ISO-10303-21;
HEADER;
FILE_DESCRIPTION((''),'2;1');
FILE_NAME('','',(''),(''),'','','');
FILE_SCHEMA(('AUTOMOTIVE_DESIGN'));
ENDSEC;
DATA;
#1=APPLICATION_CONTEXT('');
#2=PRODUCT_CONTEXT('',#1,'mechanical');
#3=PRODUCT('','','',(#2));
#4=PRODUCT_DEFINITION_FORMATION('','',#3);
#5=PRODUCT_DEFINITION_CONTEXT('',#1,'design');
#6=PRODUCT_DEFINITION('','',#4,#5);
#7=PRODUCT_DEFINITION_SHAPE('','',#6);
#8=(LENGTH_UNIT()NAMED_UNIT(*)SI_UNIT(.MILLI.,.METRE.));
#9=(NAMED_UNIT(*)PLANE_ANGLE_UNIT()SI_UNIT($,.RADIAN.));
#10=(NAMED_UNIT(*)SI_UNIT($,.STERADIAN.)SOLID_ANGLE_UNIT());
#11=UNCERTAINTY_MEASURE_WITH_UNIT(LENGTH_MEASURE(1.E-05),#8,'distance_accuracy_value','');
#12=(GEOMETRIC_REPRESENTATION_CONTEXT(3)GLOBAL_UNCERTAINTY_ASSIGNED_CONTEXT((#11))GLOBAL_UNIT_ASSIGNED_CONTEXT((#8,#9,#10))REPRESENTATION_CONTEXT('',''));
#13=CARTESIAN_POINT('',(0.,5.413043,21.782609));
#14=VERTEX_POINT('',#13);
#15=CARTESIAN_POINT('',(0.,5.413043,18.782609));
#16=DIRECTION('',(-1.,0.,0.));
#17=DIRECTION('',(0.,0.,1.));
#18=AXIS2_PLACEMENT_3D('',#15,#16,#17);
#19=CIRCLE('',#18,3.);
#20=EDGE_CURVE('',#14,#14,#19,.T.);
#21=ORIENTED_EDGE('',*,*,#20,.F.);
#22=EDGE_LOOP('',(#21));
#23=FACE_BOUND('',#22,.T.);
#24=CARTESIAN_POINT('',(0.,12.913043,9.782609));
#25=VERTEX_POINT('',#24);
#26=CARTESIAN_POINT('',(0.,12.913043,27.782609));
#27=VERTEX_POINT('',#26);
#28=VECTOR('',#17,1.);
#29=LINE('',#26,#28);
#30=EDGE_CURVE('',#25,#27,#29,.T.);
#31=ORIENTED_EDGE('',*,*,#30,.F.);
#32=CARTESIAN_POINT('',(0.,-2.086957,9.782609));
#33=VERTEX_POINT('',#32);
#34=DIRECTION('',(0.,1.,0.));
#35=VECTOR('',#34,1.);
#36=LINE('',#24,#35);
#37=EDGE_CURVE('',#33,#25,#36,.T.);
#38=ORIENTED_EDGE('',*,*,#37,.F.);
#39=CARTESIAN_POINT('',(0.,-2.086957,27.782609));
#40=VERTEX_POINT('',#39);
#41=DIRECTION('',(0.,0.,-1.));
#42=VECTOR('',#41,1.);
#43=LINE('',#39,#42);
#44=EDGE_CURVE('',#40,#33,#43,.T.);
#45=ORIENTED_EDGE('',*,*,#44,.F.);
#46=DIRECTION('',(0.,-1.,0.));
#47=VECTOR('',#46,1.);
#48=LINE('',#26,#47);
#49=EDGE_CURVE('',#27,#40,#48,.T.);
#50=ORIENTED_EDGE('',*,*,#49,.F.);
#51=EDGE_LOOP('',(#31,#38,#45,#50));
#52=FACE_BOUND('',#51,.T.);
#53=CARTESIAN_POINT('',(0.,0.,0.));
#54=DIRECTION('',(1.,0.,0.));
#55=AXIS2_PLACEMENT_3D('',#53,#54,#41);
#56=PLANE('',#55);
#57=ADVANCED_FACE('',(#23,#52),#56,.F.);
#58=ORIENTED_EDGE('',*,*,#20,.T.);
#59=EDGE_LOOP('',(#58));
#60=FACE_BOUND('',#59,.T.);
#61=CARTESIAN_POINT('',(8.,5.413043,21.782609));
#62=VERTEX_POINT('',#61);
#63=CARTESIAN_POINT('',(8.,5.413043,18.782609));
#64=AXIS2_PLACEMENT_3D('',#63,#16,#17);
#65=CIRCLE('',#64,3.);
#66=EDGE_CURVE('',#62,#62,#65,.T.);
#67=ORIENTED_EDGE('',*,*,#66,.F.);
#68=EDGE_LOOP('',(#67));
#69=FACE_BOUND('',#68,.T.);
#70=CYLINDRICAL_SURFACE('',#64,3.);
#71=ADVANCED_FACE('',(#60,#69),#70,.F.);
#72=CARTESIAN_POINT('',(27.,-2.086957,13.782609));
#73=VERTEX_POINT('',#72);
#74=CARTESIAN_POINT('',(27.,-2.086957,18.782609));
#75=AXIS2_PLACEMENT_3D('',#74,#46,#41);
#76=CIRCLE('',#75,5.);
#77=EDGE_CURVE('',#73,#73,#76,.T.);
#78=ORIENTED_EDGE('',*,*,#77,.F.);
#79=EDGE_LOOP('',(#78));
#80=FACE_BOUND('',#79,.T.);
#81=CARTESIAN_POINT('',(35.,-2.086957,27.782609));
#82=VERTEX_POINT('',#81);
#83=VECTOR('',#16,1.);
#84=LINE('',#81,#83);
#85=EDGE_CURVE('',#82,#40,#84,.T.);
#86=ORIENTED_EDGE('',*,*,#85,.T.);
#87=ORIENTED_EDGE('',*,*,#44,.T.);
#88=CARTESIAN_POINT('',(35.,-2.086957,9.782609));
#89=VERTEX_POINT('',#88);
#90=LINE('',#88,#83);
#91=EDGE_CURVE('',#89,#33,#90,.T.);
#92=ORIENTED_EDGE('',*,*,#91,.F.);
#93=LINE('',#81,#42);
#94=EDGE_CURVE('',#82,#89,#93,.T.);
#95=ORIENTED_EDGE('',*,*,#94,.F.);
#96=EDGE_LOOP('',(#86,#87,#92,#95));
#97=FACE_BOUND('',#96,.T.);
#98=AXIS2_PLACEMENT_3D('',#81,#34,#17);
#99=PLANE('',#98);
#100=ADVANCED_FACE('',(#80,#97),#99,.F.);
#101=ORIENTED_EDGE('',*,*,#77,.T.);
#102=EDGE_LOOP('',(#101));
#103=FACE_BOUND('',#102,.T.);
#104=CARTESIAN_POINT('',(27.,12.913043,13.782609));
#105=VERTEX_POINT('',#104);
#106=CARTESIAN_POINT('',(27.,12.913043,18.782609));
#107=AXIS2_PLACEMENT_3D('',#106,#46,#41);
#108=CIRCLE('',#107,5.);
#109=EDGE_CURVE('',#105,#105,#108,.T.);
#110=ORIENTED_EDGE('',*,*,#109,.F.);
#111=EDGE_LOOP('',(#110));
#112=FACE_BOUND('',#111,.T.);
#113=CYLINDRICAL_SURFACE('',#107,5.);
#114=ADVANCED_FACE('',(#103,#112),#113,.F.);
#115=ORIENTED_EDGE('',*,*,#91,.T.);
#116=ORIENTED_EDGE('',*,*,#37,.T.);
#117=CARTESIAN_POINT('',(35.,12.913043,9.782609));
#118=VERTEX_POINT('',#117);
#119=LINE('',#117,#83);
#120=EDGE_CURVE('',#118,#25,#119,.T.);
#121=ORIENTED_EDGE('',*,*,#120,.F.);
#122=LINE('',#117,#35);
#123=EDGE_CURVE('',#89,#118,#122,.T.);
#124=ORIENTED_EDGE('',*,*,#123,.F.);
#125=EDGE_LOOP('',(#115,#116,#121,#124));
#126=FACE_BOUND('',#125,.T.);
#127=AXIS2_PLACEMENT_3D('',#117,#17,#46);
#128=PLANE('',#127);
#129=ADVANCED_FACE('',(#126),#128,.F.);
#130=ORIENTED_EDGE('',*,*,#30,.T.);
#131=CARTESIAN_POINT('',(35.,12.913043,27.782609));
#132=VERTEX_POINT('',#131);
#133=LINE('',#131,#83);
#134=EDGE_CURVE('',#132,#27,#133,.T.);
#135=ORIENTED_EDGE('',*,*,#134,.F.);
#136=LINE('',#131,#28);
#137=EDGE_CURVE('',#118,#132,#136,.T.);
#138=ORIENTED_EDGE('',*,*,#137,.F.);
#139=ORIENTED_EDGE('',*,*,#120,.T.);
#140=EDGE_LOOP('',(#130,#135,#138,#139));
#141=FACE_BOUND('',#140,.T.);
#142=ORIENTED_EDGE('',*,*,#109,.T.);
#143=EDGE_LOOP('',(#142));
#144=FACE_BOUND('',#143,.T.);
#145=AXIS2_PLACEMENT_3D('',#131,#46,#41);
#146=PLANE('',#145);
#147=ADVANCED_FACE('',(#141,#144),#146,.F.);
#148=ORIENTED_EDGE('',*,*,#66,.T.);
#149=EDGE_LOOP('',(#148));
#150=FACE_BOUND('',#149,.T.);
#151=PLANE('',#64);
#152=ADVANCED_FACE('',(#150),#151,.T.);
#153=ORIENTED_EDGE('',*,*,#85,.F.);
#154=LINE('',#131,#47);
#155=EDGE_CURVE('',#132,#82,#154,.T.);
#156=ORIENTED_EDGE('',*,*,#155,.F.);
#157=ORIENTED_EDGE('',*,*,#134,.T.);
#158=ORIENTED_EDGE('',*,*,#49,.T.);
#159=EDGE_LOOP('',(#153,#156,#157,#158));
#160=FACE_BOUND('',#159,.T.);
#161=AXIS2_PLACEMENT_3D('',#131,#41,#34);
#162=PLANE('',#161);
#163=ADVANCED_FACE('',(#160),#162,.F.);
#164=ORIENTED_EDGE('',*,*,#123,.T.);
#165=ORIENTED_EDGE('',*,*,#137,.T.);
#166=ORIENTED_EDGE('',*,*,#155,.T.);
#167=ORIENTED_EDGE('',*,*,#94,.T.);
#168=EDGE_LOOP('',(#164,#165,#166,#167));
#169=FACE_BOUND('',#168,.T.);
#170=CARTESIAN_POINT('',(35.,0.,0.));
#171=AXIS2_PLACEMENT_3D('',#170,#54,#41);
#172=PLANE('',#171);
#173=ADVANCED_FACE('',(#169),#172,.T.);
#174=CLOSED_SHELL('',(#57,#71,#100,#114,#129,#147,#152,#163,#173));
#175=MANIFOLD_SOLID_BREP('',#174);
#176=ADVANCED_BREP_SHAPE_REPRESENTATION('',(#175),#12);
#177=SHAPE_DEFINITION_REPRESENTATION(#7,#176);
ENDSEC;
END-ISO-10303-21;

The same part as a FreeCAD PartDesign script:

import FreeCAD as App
import Part
import Sketcher
from FreeCAD import Vector
Q = App.Units.Quantity

doc = App.newDocument("Part")
body = doc.addObject("PartDesign::Body", "Body")

# Sketch on YZ plane
sketch1 = body.newObject("Sketcher::SketchObject", "Sketch")
sketch1.AttachmentSupport = (doc.getObject("YZ_Plane"), [""])
sketch1.MapMode = "FlatFace"
sketch1.addGeometry(Part.LineSegment(Vector(13, 28, 0), Vector(-2, 28, 0)), False)
sketch1.addGeometry(Part.LineSegment(Vector(-2, 28, 0), Vector(-2, 10, 0)), False)
sketch1.addGeometry(Part.LineSegment(Vector(-2, 10, 0), Vector(13, 10, 0)), False)
sketch1.addGeometry(Part.LineSegment(Vector(13, 10, 0), Vector(13, 28, 0)), False)
sketch1.addConstraint(Sketcher.Constraint("Coincident", 0, 2, 1, 1))
sketch1.addConstraint(Sketcher.Constraint("Coincident", 1, 2, 2, 1))
sketch1.addConstraint(Sketcher.Constraint("Coincident", 2, 2, 3, 1))
sketch1.addConstraint(Sketcher.Constraint("Coincident", 3, 2, 0, 1))
sketch1.addConstraint(Sketcher.Constraint("Horizontal", 0))
sketch1.addConstraint(Sketcher.Constraint("Vertical", 1))
sketch1.addConstraint(Sketcher.Constraint("Horizontal", 2))
sketch1.addConstraint(Sketcher.Constraint("Vertical", 3))
sketch1.addConstraint(Sketcher.Constraint("DistanceX", 0, 2, 0, 1, Q("15 mm")))
sketch1.addConstraint(Sketcher.Constraint("DistanceY", 1, 2, 1, 1, Q("18 mm")))
sketch1.addConstraint(Sketcher.Constraint("DistanceY", -1, 1, 0, 2, Q("27.782609 mm")))
sketch1.addConstraint(Sketcher.Constraint("DistanceX", 0, 2, -1, 1, Q("2.086957 mm")))
pad1 = body.newObject("PartDesign::Pad", "Pad")
pad1.Profile = sketch1
pad1.Length = 35

# Sketch on XZ plane
sketch2 = body.newObject("Sketcher::SketchObject", "Sketch001")
sketch2.AttachmentSupport = (doc.getObject("XZ_Plane"), [""])
sketch2.MapMode = "FlatFace"
sketch2.AttachmentOffset = App.Placement(Vector(0, 0, 2.086957), App.Rotation())
sketch2.addGeometry(Part.Circle(Vector(27, 19, 0), Vector(0, 0, 1), 5), False)
sketch2.addConstraint(Sketcher.Constraint("Diameter", 0, Q("10 mm")))
sketch2.addConstraint(Sketcher.Constraint("DistanceX", -1, 1, 0, 3, Q("27 mm")))
sketch2.addConstraint(Sketcher.Constraint("DistanceY", -1, 1, 0, 3, Q("18.782609 mm")))
pocket1 = body.newObject("PartDesign::Pocket", "Pocket")
pocket1.Profile = sketch2
pocket1.Type = "ThroughAll"

# Sketch on YZ plane
sketch3 = body.newObject("Sketcher::SketchObject", "Sketch002")
sketch3.AttachmentSupport = (doc.getObject("YZ_Plane"), [""])
sketch3.MapMode = "FlatFace"
sketch3.addGeometry(Part.Circle(Vector(5.4, 18.8, 0), Vector(0, 0, 1), 3), False)
sketch3.addConstraint(Sketcher.Constraint("Diameter", 0, Q("6 mm")))
sketch3.addConstraint(Sketcher.Constraint("DistanceY", -1, 1, 0, 3, Q("18.782609 mm")))
sketch3.addConstraint(Sketcher.Constraint("DistanceX", -1, 1, 0, 3, Q("5.413043 mm")))
pocket2 = body.newObject("PartDesign::Pocket", "Pocket001")
pocket2.Profile = sketch3
pocket2.Length = 8
pocket2.Reversed = True

doc.recompute()
